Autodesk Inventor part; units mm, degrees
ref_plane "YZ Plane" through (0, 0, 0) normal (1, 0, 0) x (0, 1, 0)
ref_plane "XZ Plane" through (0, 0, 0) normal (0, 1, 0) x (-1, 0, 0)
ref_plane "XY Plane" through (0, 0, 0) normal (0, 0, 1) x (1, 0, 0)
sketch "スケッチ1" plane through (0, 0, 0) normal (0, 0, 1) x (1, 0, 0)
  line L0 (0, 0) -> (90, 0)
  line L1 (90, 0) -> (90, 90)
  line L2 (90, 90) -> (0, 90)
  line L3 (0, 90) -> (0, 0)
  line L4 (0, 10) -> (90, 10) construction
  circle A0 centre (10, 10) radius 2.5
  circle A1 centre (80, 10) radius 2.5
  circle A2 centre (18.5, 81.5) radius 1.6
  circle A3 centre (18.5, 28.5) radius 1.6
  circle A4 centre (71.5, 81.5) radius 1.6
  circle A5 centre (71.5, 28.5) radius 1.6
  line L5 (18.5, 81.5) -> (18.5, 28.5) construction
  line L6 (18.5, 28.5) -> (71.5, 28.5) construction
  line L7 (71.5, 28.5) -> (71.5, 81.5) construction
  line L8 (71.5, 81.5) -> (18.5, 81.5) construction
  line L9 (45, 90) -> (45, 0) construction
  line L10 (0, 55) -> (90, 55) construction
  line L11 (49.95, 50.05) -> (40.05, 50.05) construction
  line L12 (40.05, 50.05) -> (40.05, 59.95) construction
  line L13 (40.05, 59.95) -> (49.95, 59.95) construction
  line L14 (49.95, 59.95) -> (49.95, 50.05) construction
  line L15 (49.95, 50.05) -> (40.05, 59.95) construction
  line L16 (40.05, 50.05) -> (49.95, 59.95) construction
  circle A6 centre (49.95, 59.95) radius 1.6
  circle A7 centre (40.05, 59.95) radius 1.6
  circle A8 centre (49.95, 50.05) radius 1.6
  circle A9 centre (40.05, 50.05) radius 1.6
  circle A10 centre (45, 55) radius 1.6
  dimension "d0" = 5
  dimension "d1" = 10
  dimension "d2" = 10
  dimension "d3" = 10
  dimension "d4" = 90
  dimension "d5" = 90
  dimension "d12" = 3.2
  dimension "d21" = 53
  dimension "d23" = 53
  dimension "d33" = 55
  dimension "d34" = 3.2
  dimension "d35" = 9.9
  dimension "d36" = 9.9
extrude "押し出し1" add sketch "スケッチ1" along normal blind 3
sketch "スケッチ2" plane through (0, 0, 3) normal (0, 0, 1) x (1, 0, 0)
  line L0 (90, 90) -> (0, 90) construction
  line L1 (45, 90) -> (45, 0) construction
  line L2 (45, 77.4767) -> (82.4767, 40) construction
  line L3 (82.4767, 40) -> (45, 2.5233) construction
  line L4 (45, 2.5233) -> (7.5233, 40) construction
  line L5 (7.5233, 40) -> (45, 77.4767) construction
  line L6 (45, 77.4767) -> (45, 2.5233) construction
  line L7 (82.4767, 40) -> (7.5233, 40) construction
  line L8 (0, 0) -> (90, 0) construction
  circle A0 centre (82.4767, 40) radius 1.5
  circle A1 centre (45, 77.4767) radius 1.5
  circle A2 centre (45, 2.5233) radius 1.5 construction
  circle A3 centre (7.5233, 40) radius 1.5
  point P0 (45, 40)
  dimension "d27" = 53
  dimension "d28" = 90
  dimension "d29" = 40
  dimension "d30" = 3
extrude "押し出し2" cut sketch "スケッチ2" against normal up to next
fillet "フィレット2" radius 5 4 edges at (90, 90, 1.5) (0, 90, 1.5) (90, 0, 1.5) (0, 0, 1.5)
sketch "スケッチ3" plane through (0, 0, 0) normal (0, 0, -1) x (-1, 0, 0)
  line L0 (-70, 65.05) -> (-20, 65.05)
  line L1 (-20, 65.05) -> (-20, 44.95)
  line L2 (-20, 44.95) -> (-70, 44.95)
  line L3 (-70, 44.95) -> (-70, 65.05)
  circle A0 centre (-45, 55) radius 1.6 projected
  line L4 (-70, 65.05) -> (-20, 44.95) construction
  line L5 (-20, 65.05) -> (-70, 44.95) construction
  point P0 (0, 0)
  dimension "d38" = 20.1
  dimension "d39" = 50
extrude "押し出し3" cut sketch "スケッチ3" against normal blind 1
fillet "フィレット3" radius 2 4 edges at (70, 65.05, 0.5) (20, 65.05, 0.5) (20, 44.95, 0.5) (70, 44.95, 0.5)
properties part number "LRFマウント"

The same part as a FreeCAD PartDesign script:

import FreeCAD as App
import Part
import Sketcher


def edges_at(feature, points):
    """Names of the edges that pass closest to the given points."""
    edges = feature.Shape.Edges
    near = lambda p: min(range(len(edges)), key=lambda i: edges[i].distToShape(Part.Vertex(*p))[0])
    return sorted({f"Edge{near(p) + 1}" for p in points})


def add_polygon(sketch, points):
    """Adds a closed chain of lines whose ends are joined by coincident constraints."""
    first, n = sketch.GeometryCount, len(points)
    for a, b in zip(points, points[1:] + points[:1]):
        sketch.addGeometry(Part.LineSegment(App.Vector(*a, 0), App.Vector(*b, 0)), False)
    for i in range(n):
        sketch.addConstraint(Sketcher.Constraint("Coincident", first + i, 2, first + (i + 1) % n, 1))

doc = App.newDocument("Part")
body = doc.addObject("PartDesign::Body", "Body")

sketch1 = body.newObject("Sketcher::SketchObject", "Sketch")
sketch1.AttachmentSupport = (doc.getObject("XY_Plane"), [""])
sketch1.MapMode = "FlatFace"
add_polygon(sketch1, [(0, 90), (0, 0), (90, 0), (90, 90)])
sketch1.addGeometry(Part.Circle(App.Vector(10, 10, 0), App.Vector(0, 0, 1), 2.5), False)
sketch1.addGeometry(Part.Circle(App.Vector(18.5, 28.5, 0), App.Vector(0, 0, 1), 1.6), False)
sketch1.addGeometry(Part.Circle(App.Vector(80, 10, 0), App.Vector(0, 0, 1), 2.5), False)
sketch1.addGeometry(Part.Circle(App.Vector(71.5, 28.5, 0), App.Vector(0, 0, 1), 1.6), False)
sketch1.addGeometry(Part.Circle(App.Vector(40.05, 50.05, 0), App.Vector(0, 0, 1), 1.6), False)
sketch1.addGeometry(Part.Circle(App.Vector(40.05, 59.95, 0), App.Vector(0, 0, 1), 1.6), False)
sketch1.addGeometry(Part.Circle(App.Vector(18.5, 81.5, 0), App.Vector(0, 0, 1), 1.6), False)
sketch1.addGeometry(Part.Circle(App.Vector(49.95, 50.05, 0), App.Vector(0, 0, 1), 1.6), False)
sketch1.addGeometry(Part.Circle(App.Vector(45, 55, 0), App.Vector(0, 0, 1), 1.6), False)
sketch1.addGeometry(Part.Circle(App.Vector(49.95, 59.95, 0), App.Vector(0, 0, 1), 1.6), False)
sketch1.addGeometry(Part.Circle(App.Vector(71.5, 81.5, 0), App.Vector(0, 0, 1), 1.6), False)
sketch1.addConstraint([
    Sketcher.Constraint("Vertical", 0),
    Sketcher.Constraint("Horizontal", 1),
    Sketcher.Constraint("Vertical", 2),
    Sketcher.Constraint("Horizontal", 3),
    Sketcher.Constraint("Coincident", 0, 2, -1, 1),
    Sketcher.Constraint("Equal", 4, 6),
    Sketcher.Constraint("Equal", 5, 7),
    Sketcher.Constraint("Equal", 7, 8),
    Sketcher.Constraint("Equal", 8, 9),
    Sketcher.Constraint("Equal", 9, 10),
    Sketcher.Constraint("Equal", 10, 11),
    Sketcher.Constraint("Equal", 11, 12),
    Sketcher.Constraint("Equal", 12, 13),
    Sketcher.Constraint("Equal", 13, 14),
    Sketcher.Constraint("Horizontal", 4, 3, 6, 3),
    Sketcher.Constraint("Horizontal", 5, 3, 7, 3),
    Sketcher.Constraint("Horizontal", 8, 3, 11, 3),
    Sketcher.Constraint("Horizontal", 9, 3, 13, 3),
    Sketcher.Constraint("Horizontal", 10, 3, 14, 3),
    Sketcher.Constraint("Vertical", 8, 3, 9, 3),
    Sketcher.Constraint("Vertical", 5, 3, 10, 3),
    Sketcher.Constraint("Vertical", 11, 3, 13, 3),
    Sketcher.Constraint("Vertical", 7, 3, 14, 3),
    Sketcher.Constraint("Equal", 3, 0),
    Sketcher.Constraint("Diameter", 4, 5.0),
    Sketcher.Constraint("Diameter", 5, 3.2),
    Sketcher.Constraint("DistanceX", 1, 1, 1, 2, 90.0),
    Sketcher.Constraint("DistanceX", -1, 1, 4, 3, 10.0),
    Sketcher.Constraint("DistanceY", -1, 1, 4, 3, 10.0),
    Sketcher.Constraint("DistanceY", -1, 1, 12, 3, 55.0),
    Sketcher.Constraint("DistanceX", 5, 3, 7, 3, 53.0),
    Sketcher.Constraint("DistanceY", 5, 3, 10, 3, 53.0),
    Sketcher.Constraint("DistanceX", 6, 3, 1, 2, 10.0),
    Sketcher.Constraint("DistanceY", 8, 3, 9, 3, 9.9),
    Sketcher.Constraint("DistanceX", 8, 3, 11, 3, 9.9),
    Sketcher.Constraint("DistanceX", -1, 1, 12, 3, 45.0),
    Sketcher.Constraint("DistanceX", -1, 1, 5, 3, 18.5),
    Sketcher.Constraint("DistanceY", -1, 1, 5, 3, 28.5),
    Sketcher.Constraint("DistanceX", -1, 1, 8, 3, 40.05),
    Sketcher.Constraint("DistanceY", -1, 1, 8, 3, 50.05),
])
pad1 = body.newObject("PartDesign::Pad", "Pad")
pad1.Profile = sketch1
pad1.Length = 3

sketch2 = body.newObject("Sketcher::SketchObject", "Sketch001")
sketch2.AttachmentSupport = (doc.getObject("XY_Plane"), [""])
sketch2.MapMode = "FlatFace"
sketch2.AttachmentOffset = App.Placement(App.Vector(0, 0, 3), App.Rotation())
sketch2.addGeometry([
    Part.Circle(App.Vector(82.4767, 40, 0), App.Vector(0, 0, 1), 1.5),
    Part.Circle(App.Vector(45, 77.4767, 0), App.Vector(0, 0, 1), 1.5),
    Part.Circle(App.Vector(7.5233, 40, 0), App.Vector(0, 0, 1), 1.5),
], False)
sketch2.addConstraint([
    Sketcher.Constraint("Equal", 0, 1),
    Sketcher.Constraint("Equal", 1, 2),
    Sketcher.Constraint("Horizontal", 0, 3, 2, 3),
    Sketcher.Constraint("Diameter", 0, 3.0),
    Sketcher.Constraint("DistanceY", -1, 1, 0, 3, 40.0),
    Sketcher.Constraint("DistanceX", -1, 1, 1, 3, 45.0),
    Sketcher.Constraint("DistanceX", -1, 1, 0, 3, 82.4767),
    Sketcher.Constraint("DistanceY", -1, 1, 1, 3, 77.4767),
    Sketcher.Constraint("DistanceX", -1, 1, 2, 3, 7.5233),
])
pocket1 = body.newObject("PartDesign::Pocket", "Pocket")
pocket1.Profile = sketch2
pocket1.Type = "UpToFirst"
doc.recompute()

fillet = body.newObject("PartDesign::Fillet", "Fillet")
fillet.Base = (pocket1, edges_at(pocket1, [
    (90, 90, 1.5),
    (0, 90, 1.5),
    (90, 0, 1.5),
    (0, 0, 1.5),
]))
fillet.Radius = 5

sketch3 = body.newObject("Sketcher::SketchObject", "Sketch002")
sketch3.AttachmentSupport = (doc.getObject("XY_Plane"), [""])
sketch3.MapMode = "FlatFace"
add_polygon(sketch3, [(20, 65.05), (70, 65.05), (70, 44.95), (20, 44.95)])
sketch3.addGeometry(Part.Circle(App.Vector(45, 55, 0), App.Vector(0, 0, 1), 1.6), False)
sketch3.addConstraint([
    Sketcher.Constraint("Horizontal", 0),
    Sketcher.Constraint("Vertical", 1),
    Sketcher.Constraint("Horizontal", 2),
    Sketcher.Constraint("Vertical", 3),
    Sketcher.Constraint("DistanceX", 0, 1, 0, 2, 50.0),
    Sketcher.Constraint("DistanceY", 1, 2, 1, 1, 20.1),
    Sketcher.Constraint("Diameter", 4, 3.2),
    Sketcher.Constraint("DistanceX", -1, 1, 4, 3, 45.0),
    Sketcher.Constraint("DistanceY", -1, 1, 4, 3, 55.0),
    Sketcher.Constraint("DistanceX", -1, 1, 0, 2, 70.0),
    Sketcher.Constraint("DistanceY", -1, 1, 0, 2, 65.05),
])
pocket2 = body.newObject("PartDesign::Pocket", "Pocket001")
pocket2.Profile = sketch3
pocket2.Length = 1
pocket2.Reversed = True
doc.recompute()

fillet2 = body.newObject("PartDesign::Fillet", "Fillet001")
fillet2.Base = (pocket2, edges_at(pocket2, [
    (70, 65.05, 0.5),
    (20, 65.05, 0.5),
    (20, 44.95, 0.5),
    (70, 44.95, 0.5),
]))
fillet2.Radius = 2

doc.recompute()
